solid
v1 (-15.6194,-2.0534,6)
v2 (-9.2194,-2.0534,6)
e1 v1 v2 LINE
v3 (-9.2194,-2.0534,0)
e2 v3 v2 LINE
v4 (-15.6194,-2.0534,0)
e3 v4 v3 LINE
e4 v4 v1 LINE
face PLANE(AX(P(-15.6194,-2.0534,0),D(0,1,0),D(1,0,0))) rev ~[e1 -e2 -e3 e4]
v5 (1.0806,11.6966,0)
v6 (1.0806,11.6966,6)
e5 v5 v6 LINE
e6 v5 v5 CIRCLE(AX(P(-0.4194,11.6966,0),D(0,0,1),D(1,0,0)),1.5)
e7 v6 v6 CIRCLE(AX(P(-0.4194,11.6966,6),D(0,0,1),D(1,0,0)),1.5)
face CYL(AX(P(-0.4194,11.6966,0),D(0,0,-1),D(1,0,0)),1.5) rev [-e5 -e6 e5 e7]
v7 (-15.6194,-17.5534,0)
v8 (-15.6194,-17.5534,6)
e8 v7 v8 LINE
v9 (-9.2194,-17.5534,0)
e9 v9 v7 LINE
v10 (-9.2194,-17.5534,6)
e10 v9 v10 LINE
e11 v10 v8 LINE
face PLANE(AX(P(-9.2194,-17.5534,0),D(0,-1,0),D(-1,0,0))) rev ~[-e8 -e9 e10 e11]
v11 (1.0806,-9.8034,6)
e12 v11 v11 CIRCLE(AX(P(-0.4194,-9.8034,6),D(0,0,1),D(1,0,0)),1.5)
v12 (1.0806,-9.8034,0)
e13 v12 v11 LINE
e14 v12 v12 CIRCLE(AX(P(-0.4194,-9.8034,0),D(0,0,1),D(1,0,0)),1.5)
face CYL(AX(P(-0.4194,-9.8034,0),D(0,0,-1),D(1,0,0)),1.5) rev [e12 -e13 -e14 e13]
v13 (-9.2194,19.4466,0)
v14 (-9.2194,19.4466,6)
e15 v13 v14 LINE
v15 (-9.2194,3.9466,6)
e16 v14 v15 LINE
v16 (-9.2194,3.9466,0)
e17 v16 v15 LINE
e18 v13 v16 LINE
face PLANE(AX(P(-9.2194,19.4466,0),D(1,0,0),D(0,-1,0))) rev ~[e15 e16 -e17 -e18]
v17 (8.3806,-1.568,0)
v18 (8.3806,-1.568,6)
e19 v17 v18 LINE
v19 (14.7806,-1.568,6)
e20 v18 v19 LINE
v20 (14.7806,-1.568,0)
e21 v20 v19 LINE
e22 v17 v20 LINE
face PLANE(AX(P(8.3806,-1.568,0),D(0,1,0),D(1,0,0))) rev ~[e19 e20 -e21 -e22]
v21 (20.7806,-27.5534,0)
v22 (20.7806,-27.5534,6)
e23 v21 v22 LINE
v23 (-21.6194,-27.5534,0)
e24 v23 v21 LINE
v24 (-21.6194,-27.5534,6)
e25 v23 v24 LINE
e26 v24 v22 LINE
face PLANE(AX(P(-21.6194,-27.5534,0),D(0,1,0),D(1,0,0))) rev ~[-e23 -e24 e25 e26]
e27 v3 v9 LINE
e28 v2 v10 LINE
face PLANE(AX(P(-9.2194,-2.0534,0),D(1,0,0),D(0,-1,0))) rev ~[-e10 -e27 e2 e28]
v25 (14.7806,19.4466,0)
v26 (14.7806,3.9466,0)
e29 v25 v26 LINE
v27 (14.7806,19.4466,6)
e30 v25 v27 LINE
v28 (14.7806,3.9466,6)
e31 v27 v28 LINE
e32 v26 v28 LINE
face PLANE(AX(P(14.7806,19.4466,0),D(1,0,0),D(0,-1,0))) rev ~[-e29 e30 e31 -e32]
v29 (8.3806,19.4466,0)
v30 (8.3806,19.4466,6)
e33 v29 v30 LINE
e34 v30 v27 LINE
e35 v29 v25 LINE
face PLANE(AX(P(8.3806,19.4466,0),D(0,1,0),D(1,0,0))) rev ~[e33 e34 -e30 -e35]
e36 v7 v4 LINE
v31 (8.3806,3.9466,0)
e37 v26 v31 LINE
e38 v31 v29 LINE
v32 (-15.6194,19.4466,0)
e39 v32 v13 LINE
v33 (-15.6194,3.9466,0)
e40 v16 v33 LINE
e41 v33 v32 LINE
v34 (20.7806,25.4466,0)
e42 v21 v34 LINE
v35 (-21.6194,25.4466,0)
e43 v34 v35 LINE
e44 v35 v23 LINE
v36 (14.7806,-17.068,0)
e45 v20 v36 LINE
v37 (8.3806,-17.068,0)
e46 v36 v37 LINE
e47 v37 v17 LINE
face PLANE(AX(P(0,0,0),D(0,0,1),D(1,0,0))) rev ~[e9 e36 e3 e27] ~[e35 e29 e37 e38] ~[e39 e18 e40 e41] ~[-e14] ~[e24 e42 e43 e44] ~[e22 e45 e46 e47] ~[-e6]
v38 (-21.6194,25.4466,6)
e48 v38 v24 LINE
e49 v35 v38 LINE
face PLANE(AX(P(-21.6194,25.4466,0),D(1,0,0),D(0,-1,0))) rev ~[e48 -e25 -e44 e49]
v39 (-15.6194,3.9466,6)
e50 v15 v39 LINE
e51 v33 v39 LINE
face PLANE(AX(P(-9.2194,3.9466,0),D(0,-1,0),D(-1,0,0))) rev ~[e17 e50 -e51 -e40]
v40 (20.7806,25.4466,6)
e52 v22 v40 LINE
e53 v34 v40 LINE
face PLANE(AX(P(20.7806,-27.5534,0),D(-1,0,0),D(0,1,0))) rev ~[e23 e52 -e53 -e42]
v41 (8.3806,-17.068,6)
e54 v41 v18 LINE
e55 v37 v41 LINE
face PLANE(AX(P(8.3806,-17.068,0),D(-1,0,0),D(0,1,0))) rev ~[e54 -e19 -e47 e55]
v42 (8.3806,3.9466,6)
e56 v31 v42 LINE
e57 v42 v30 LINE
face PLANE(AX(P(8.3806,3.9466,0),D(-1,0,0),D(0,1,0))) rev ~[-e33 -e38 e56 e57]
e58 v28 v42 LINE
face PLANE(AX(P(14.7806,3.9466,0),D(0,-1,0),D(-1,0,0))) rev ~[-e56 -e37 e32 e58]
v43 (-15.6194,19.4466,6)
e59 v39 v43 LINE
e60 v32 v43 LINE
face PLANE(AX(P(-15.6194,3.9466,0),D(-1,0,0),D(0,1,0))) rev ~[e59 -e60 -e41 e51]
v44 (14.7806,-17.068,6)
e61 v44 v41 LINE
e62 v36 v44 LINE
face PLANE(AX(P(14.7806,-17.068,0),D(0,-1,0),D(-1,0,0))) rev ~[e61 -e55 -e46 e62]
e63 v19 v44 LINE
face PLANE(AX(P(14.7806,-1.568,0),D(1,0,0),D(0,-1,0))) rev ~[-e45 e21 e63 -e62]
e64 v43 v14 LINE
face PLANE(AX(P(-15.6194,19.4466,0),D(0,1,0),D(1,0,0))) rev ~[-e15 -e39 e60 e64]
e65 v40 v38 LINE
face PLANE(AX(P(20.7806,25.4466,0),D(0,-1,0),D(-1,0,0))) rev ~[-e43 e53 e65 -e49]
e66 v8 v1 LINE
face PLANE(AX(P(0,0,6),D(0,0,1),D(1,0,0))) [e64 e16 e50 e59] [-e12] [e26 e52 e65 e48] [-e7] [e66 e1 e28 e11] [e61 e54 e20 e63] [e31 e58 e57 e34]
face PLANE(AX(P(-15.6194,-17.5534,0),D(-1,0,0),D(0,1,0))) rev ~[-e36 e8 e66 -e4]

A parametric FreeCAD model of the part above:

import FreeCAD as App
import Part
import Sketcher
from FreeCAD import Vector
Q = App.Units.Quantity

doc = App.newDocument("Part")
body = doc.addObject("PartDesign::Body", "Body")

sketch1 = body.newObject("Sketcher::SketchObject", "Sketch")
sketch1.AttachmentSupport = (doc.getObject("XY_Plane"), [""])
sketch1.MapMode = "FlatFace"
sketch1.addGeometry(Part.LineSegment(Vector(-21.6, -27.6, 0), Vector(20.8, -27.6, 0)), False)
sketch1.addGeometry(Part.LineSegment(Vector(20.8, -27.6, 0), Vector(20.8, 25.4, 0)), False)
sketch1.addGeometry(Part.LineSegment(Vector(20.8, 25.4, 0), Vector(-21.6, 25.4, 0)), False)
sketch1.addGeometry(Part.LineSegment(Vector(-21.6, 25.4, 0), Vector(-21.6, -27.6, 0)), False)
sketch1.addGeometry(Part.LineSegment(Vector(-15.6, -2.1, 0), Vector(-9.2, -2.1, 0)), False)
sketch1.addGeometry(Part.LineSegment(Vector(-9.2, -2.1, 0), Vector(-9.2, -17.6, 0)), False)
sketch1.addGeometry(Part.LineSegment(Vector(-9.2, -17.6, 0), Vector(-15.6, -17.6, 0)), False)
sketch1.addGeometry(Part.LineSegment(Vector(-15.6, -17.6, 0), Vector(-15.6, -2.1, 0)), False)
sketch1.addGeometry(Part.Circle(Vector(-0.4, -9.8, 0), Vector(0, 0, 1), 1.5), False)
sketch1.addGeometry(Part.LineSegment(Vector(8.4, -1.6, 0), Vector(14.8, -1.6, 0)), False)
sketch1.addGeometry(Part.LineSegment(Vector(14.8, -1.6, 0), Vector(14.8, -17.1, 0)), False)
sketch1.addGeometry(Part.LineSegment(Vector(14.8, -17.1, 0), Vector(8.4, -17.1, 0)), False)
sketch1.addGeometry(Part.LineSegment(Vector(8.4, -17.1, 0), Vector(8.4, -1.6, 0)), False)
sketch1.addGeometry(Part.LineSegment(Vector(-15.6, 19.4, 0), Vector(-9.2, 19.4, 0)), False)
sketch1.addGeometry(Part.LineSegment(Vector(-9.2, 19.4, 0), Vector(-9.2, 3.9, 0)), False)
sketch1.addGeometry(Part.LineSegment(Vector(-9.2, 3.9, 0), Vector(-15.6, 3.9, 0)), False)
sketch1.addGeometry(Part.LineSegment(Vector(-15.6, 3.9, 0), Vector(-15.6, 19.4, 0)), False)
sketch1.addGeometry(Part.Circle(Vector(-0.4, 11.7, 0), Vector(0, 0, 1), 1.5), False)
sketch1.addGeometry(Part.LineSegment(Vector(8.4, 19.4, 0), Vector(14.8, 19.4, 0)), False)
sketch1.addGeometry(Part.LineSegment(Vector(14.8, 19.4, 0), Vector(14.8, 3.9, 0)), False)
sketch1.addGeometry(Part.LineSegment(Vector(14.8, 3.9, 0), Vector(8.4, 3.9, 0)), False)
sketch1.addGeometry(Part.LineSegment(Vector(8.4, 3.9, 0), Vector(8.4, 19.4, 0)), False)
sketch1.addConstraint(Sketcher.Constraint("Coincident", 0, 2, 1, 1))
sketch1.addConstraint(Sketcher.Constraint("Coincident", 1, 2, 2, 1))
sketch1.addConstraint(Sketcher.Constraint("Coincident", 2, 2, 3, 1))
sketch1.addConstraint(Sketcher.Constraint("Coincident", 3, 2, 0, 1))
sketch1.addConstraint(Sketcher.Constraint("Coincident", 4, 2, 5, 1))
sketch1.addConstraint(Sketcher.Constraint("Coincident", 5, 2, 6, 1))
sketch1.addConstraint(Sketcher.Constraint("Coincident", 6, 2, 7, 1))
sketch1.addConstraint(Sketcher.Constraint("Coincident", 7, 2, 4, 1))
sketch1.addConstraint(Sketcher.Constraint("Coincident", 9, 2, 10, 1))
sketch1.addConstraint(Sketcher.Constraint("Coincident", 10, 2, 11, 1))
sketch1.addConstraint(Sketcher.Constraint("Coincident", 11, 2, 12, 1))
sketch1.addConstraint(Sketcher.Constraint("Coincident", 12, 2, 9, 1))
sketch1.addConstraint(Sketcher.Constraint("Coincident", 13, 2, 14, 1))
sketch1.addConstraint(Sketcher.Constraint("Coincident", 14, 2, 15, 1))
sketch1.addConstraint(Sketcher.Constraint("Coincident", 15, 2, 16, 1))
sketch1.addConstraint(Sketcher.Constraint("Coincident", 16, 2, 13, 1))
sketch1.addConstraint(Sketcher.Constraint("Coincident", 18, 2, 19, 1))
sketch1.addConstraint(Sketcher.Constraint("Coincident", 19, 2, 20, 1))
sketch1.addConstraint(Sketcher.Constraint("Coincident", 20, 2, 21, 1))
sketch1.addConstraint(Sketcher.Constraint("Coincident", 21, 2, 18, 1))
sketch1.addConstraint(Sketcher.Constraint("Horizontal", 0))
sketch1.addConstraint(Sketcher.Constraint("Vertical", 1))
sketch1.addConstraint(Sketcher.Constraint("Horizontal", 2))
sketch1.addConstraint(Sketcher.Constraint("Vertical", 3))
sketch1.addConstraint(Sketcher.Constraint("Horizontal", 4))
sketch1.addConstraint(Sketcher.Constraint("Vertical", 5))
sketch1.addConstraint(Sketcher.Constraint("Horizontal", 6))
sketch1.addConstraint(Sketcher.Constraint("Vertical", 7))
sketch1.addConstraint(Sketcher.Constraint("Horizontal", 9))
sketch1.addConstraint(Sketcher.Constraint("Vertical", 10))
sketch1.addConstraint(Sketcher.Constraint("Horizontal", 11))
sketch1.addConstraint(Sketcher.Constraint("Vertical", 12))
sketch1.addConstraint(Sketcher.Constraint("Horizontal", 13))
sketch1.addConstraint(Sketcher.Constraint("Vertical", 14))
sketch1.addConstraint(Sketcher.Constraint("Horizontal", 15))
sketch1.addConstraint(Sketcher.Constraint("Vertical", 16))
sketch1.addConstraint(Sketcher.Constraint("Horizontal", 18))
sketch1.addConstraint(Sketcher.Constraint("Vertical", 19))
sketch1.addConstraint(Sketcher.Constraint("Horizontal", 20))
sketch1.addConstraint(Sketcher.Constraint("Vertical", 21))
sketch1.addConstraint(Sketcher.Constraint("Equal", 8, 17))
sketch1.addConstraint(Sketcher.Constraint("Horizontal", 16, 2, 18, 2))
sketch1.addConstraint(Sketcher.Constraint("Horizontal", 15, 2, 19, 2))
sketch1.addConstraint(Sketcher.Constraint("Vertical", 8, 3, 17, 3))
sketch1.addConstraint(Sketcher.Constraint("Vertical", 5, 2, 13, 2))
sketch1.addConstraint(Sketcher.Constraint("Vertical", 7, 2, 15, 2))
sketch1.addConstraint(Sketcher.Constraint("Vertical", 10, 2, 18, 2))
sketch1.addConstraint(Sketcher.Constraint("Vertical", 12, 2, 20, 2))
sketch1.addConstraint(Sketcher.Constraint("Equal", 6, 9))
sketch1.addConstraint(Sketcher.Constraint("Equal", 7, 10))
sketch1.addConstraint(Sketcher.Constraint("Equal", 12, 14))
sketch1.addConstraint(Sketcher.Constraint("Diameter", 8, Q("3 mm")))
sketch1.addConstraint(Sketcher.Constraint("DistanceY", 1, 1, 1, 2, Q("53 mm")))
sketch1.addConstraint(Sketcher.Constraint("DistanceX", 0, 1, 0, 2, Q("42.4 mm")))
sketch1.addConstraint(Sketcher.Constraint("DistanceX", 4, 1, 4, 2, Q("6.4 mm")))
sketch1.addConstraint(Sketcher.Constraint("DistanceY", 5, 2, 5, 1, Q("15.5 mm")))
sketch1.addConstraint(Sketcher.Constraint("DistanceX", 4, 2, 0, 2, Q("30 mm")))
sketch1.addConstraint(Sketcher.Constraint("DistanceY", 3, 2, 5, 2, Q("10 mm")))
sketch1.addConstraint(Sketcher.Constraint("DistanceX", 4, 2, 9, 2, Q("24 mm")))
sketch1.addConstraint(Sketcher.Constraint("DistanceY", 13, 2, 2, 2, Q("6 mm")))
sketch1.addConstraint(Sketcher.Constraint("DistanceY", 8, 3, 17, 3, Q("21.5 mm")))
sketch1.addConstraint(Sketcher.Constraint("DistanceX", 8, 3, 0, 2, Q("21.2 mm")))
sketch1.addConstraint(Sketcher.Constraint("DistanceY", 0, 2, 8, 3, Q("17.75 mm")))
sketch1.addConstraint(Sketcher.Constraint("DistanceY", 9, 2, -1, 1, Q("1.568 mm")))
sketch1.addConstraint(Sketcher.Constraint("DistanceX", 8, 3, -1, 1, Q("0.4194 mm")))
sketch1.addConstraint(Sketcher.Constraint("DistanceY", 8, 3, -1, 1, Q("9.8034 mm")))
pad1 = body.newObject("PartDesign::Pad", "Pad")
pad1.Profile = sketch1
pad1.Length = 6

doc.recompute()
